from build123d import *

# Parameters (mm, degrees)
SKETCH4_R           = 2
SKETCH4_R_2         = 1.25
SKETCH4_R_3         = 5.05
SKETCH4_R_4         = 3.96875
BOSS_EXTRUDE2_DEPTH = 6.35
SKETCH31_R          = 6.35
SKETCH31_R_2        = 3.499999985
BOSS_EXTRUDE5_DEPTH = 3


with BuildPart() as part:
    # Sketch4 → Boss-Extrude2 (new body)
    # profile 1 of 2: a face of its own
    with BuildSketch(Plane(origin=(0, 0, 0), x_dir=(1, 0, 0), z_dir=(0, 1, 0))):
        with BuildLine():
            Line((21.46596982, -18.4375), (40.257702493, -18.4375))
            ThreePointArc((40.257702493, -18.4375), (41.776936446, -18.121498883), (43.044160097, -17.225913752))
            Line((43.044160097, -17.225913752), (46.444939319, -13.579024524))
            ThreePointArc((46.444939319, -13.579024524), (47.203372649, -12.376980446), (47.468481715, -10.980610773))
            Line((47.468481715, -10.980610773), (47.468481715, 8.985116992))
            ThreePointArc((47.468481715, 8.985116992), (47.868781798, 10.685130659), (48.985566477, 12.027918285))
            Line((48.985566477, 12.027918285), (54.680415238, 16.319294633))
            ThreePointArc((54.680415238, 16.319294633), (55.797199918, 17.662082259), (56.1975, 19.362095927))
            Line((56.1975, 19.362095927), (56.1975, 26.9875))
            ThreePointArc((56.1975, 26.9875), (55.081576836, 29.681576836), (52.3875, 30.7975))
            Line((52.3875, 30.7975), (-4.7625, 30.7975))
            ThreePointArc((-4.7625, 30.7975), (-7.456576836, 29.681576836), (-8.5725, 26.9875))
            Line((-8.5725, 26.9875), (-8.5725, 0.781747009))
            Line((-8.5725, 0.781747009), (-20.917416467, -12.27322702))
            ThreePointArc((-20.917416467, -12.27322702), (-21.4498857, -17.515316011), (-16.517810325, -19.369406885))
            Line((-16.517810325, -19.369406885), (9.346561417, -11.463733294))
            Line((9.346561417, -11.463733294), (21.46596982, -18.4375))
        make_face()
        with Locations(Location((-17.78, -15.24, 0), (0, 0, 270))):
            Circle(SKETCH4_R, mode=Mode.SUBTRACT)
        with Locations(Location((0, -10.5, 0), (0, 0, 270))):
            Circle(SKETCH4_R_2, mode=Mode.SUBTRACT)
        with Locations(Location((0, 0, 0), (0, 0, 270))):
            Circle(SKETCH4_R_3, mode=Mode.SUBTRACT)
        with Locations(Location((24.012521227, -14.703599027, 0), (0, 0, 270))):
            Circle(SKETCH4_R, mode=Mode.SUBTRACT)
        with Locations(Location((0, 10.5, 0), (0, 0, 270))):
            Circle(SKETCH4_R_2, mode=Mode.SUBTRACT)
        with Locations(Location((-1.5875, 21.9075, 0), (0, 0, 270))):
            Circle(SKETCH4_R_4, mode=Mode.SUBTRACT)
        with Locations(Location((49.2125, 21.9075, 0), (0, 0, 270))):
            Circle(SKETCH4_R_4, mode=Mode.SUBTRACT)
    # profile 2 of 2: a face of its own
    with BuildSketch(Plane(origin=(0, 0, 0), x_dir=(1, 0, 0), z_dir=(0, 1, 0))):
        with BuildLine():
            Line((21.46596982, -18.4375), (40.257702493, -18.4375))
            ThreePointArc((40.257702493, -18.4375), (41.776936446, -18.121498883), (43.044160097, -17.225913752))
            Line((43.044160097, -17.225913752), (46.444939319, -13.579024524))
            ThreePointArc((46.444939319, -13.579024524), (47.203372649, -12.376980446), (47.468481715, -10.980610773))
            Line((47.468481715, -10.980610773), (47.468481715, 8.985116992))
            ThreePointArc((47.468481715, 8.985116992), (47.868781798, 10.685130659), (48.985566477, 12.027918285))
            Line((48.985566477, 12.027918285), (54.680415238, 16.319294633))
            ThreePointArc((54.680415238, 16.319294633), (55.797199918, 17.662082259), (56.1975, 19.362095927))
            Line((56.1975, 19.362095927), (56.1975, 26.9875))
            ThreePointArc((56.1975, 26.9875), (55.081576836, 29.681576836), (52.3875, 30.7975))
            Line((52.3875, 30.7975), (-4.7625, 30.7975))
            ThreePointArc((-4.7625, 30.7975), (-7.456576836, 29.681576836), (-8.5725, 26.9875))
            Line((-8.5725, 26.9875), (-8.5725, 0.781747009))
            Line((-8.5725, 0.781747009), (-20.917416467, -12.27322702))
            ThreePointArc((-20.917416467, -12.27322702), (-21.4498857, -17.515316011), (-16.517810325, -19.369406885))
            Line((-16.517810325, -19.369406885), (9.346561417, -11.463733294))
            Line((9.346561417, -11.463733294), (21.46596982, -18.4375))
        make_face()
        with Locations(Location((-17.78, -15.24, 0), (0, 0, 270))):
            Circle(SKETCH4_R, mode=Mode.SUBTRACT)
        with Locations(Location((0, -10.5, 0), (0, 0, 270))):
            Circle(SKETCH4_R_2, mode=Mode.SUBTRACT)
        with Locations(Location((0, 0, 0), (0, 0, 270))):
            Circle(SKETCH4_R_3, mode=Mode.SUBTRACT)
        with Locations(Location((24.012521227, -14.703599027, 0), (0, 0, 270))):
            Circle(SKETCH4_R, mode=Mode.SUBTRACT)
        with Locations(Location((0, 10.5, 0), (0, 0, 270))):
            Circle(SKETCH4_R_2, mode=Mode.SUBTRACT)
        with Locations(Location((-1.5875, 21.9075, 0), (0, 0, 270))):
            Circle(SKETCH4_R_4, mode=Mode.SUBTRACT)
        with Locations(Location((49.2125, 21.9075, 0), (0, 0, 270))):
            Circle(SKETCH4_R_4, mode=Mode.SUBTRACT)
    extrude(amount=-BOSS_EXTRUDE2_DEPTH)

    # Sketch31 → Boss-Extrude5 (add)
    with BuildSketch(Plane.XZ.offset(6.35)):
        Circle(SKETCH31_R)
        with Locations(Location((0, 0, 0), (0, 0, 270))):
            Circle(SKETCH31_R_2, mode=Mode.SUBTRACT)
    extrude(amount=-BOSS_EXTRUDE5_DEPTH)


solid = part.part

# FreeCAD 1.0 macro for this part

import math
import FreeCAD as App
import Part
import Sketcher
from FreeCAD import Vector
Q = App.Units.Quantity

doc = App.newDocument("Part")
body = doc.addObject("PartDesign::Body", "Body")

sketch1 = body.newObject("Sketcher::SketchObject", "Sketch")
sketch1.AttachmentSupport = (doc.getObject("XZ_Plane"), [""])
sketch1.MapMode = "FlatFace"
sketch1.addGeometry([
    Part.LineSegment(Vector(21.5, 18.4, 0), Vector(40.3, 18.4, 0)),
    Part.ArcOfCircle(Part.Circle(Vector(40.3, 14.6, 0), Vector(0, 0, 1), 3.8), math.radians(43), math.radians(90)),
    Part.LineSegment(Vector(43, 17.2, 0), Vector(46.4, 13.6, 0)),
    Part.ArcOfCircle(Part.Circle(Vector(43.7, 11, 0), Vector(0, 0, 1), 3.8), math.radians(0), math.radians(43)),
    Part.LineSegment(Vector(47.5, 11, 0), Vector(47.5, -9, 0)),
    Part.ArcOfCircle(Part.Circle(Vector(51.3, -9, 0), Vector(0, 0, 1), 3.8), math.radians(-180), math.radians(-127)),
    Part.LineSegment(Vector(49, -12, 0), Vector(54.7, -16.3, 0)),
    Part.ArcOfCircle(Part.Circle(Vector(52.4, -19.4, 0), Vector(0, 0, 1), 3.8), math.radians(0), math.radians(53)),
    Part.LineSegment(Vector(56.2, -19.4, 0), Vector(56.2, -27, 0)),
    Part.ArcOfCircle(Part.Circle(Vector(52.4, -27, 0), Vector(0, 0, 1), 3.8), math.radians(-90), math.radians(0)),
    Part.LineSegment(Vector(52.4, -30.8, 0), Vector(-4.8, -30.8, 0)),
    Part.ArcOfCircle(Part.Circle(Vector(-4.8, -27, 0), Vector(0, 0, 1), 3.8), math.radians(-180), math.radians(-90)),
    Part.LineSegment(Vector(-8.6, -27, 0), Vector(-8.6, -0.8, 0)),
    Part.LineSegment(Vector(-8.6, -0.8, 0), Vector(-20.9, 12.3, 0)),
    Part.ArcOfCircle(Part.Circle(Vector(-17.8, 15.2, 0), Vector(0, 0, 1), 4.3), math.radians(73), math.radians(223)),
    Part.LineSegment(Vector(-16.5, 19.4, 0), Vector(9.3, 11.5, 0)),
    Part.LineSegment(Vector(9.3, 11.5, 0), Vector(21.5, 18.4, 0)),
    Part.Circle(Vector(-17.8, 15.2, 0), Vector(0, 0, 1), 2),
    Part.Circle(Vector(0, 10.5, 0), Vector(0, 0, 1), 1.2),
    Part.Circle(Vector(0, 0, 0), Vector(0, 0, 1), 5),
    Part.Circle(Vector(24, 14.7, 0), Vector(0, 0, 1), 2),
    Part.Circle(Vector(0, -10.5, 0), Vector(0, 0, 1), 1.2),
    Part.Circle(Vector(-1.6, -21.9, 0), Vector(0, 0, 1), 4),
    Part.Circle(Vector(49.2, -21.9, 0), Vector(0, 0, 1), 4),
], False)
sketch1.addConstraint([
    Sketcher.Constraint("Tangent", 0, 2, 1, 2),
    Sketcher.Constraint("Tangent", 1, 1, 2, 1),
    Sketcher.Constraint("Tangent", 2, 2, 3, 2),
    Sketcher.Constraint("Tangent", 3, 1, 4, 1),
    Sketcher.Constraint("Tangent", 4, 2, 5, 1),
    Sketcher.Constraint("Tangent", 5, 2, 6, 1),
    Sketcher.Constraint("Tangent", 6, 2, 7, 2),
    Sketcher.Constraint("Tangent", 7, 1, 8, 1),
    Sketcher.Constraint("Tangent", 8, 2, 9, 2),
    Sketcher.Constraint("Tangent", 9, 1, 10, 1),
    Sketcher.Constraint("Tangent", 10, 2, 11, 2),
    Sketcher.Constraint("Tangent", 11, 1, 12, 1),
    Sketcher.Constraint("Coincident", 12, 2, 13, 1),
    Sketcher.Constraint("Tangent", 13, 2, 14, 2),
    Sketcher.Constraint("Tangent", 14, 1, 15, 1),
    Sketcher.Constraint("Coincident", 15, 2, 16, 1),
    Sketcher.Constraint("Coincident", 16, 2, 0, 1),
    Sketcher.Constraint("Horizontal", 0),
    Sketcher.Constraint("Vertical", 4),
    Sketcher.Constraint("Vertical", 8),
    Sketcher.Constraint("Horizontal", 10),
    Sketcher.Constraint("Vertical", 12),
    Sketcher.Constraint("Coincident", 19, 3, -1, 1),
    Sketcher.Constraint("Coincident", 17, 3, 14, 3),
    Sketcher.Constraint("Equal", 1, 3),
    Sketcher.Constraint("Equal", 3, 5),
    Sketcher.Constraint("Equal", 5, 7),
    Sketcher.Constraint("Equal", 7, 9),
    Sketcher.Constraint("Equal", 9, 11),
    Sketcher.Constraint("Equal", 17, 20),
    Sketcher.Constraint("Equal", 18, 21),
    Sketcher.Constraint("Equal", 22, 23),
    Sketcher.Constraint("Symmetric", 18, 3, 21, 3, -1, 1),
    Sketcher.Constraint("PointOnObject", 18, 3, -2),
    Sketcher.Constraint("Horizontal", 22, 3, 23, 3),
    Sketcher.Constraint("Radius", 1, Q("0.15 in")),
    Sketcher.Constraint("Radius", 14, Q("0.17 in")),
    Sketcher.Constraint("Diameter", 22, Q("0.3125 in")),
    Sketcher.Constraint("Angle", 2, Q("-47 deg")),
    Sketcher.Constraint("Angle", 6, Q("-37 deg")),
    Sketcher.Constraint("DistanceX", 10, 2, 10, 1, Q("2.25 in")),
    Sketcher.Constraint("DistanceX", 14, 3, -1, 1, Q("0.7 in")),
    Sketcher.Constraint("DistanceY", -1, 1, 14, 3, Q("0.6 in")),
    Sketcher.Constraint("DistanceY", 11, 3, 22, 3, Q("0.2 in")),
    Sketcher.Constraint("Diameter", 17, 4.0),
    Sketcher.Constraint("Diameter", 18, 2.5),
    Sketcher.Constraint("Diameter", 19, 10.1),
    Sketcher.Constraint("DistanceX", -1, 1, 7, 3, Q("2.0625 in")),
    Sketcher.Constraint("DistanceY", 9, 3, -1, 1, Q("1.0625 in")),
    Sketcher.Constraint("DistanceX", 22, 3, -1, 1, Q("0.0625 in")),
    Sketcher.Constraint("DistanceX", -1, 1, 23, 3, Q("1.9375 in")),
    Sketcher.Constraint("DistanceY", 18, 3, 1, 3, Q("0.1625 in")),
    Sketcher.Constraint("DistanceX", 15, 2, 20, 3, Q("0.5774 in")),
    Sketcher.Constraint("DistanceY", -1, 1, 1, 3, 14.6275),
    Sketcher.Constraint("DistanceY", -1, 1, 20, 3, 14.703599),
    Sketcher.Constraint("Distance", 2, 4.986492),
    Sketcher.Constraint("Distance", 13, 17.967451),
    Sketcher.Constraint("DistanceX", 0, 1, 0, 2, 18.791733),
    Sketcher.Constraint("DistanceY", 4, 2, 4, 1, 19.965728),
    Sketcher.Constraint("DistanceY", 8, 2, 8, 1, 7.625404),
    Sketcher.Constraint("DistanceX", -1, 1, 20, 3, 24.012521),
    Sketcher.Constraint("DistanceX", 14, 1, -1, 1, 16.51781),
])
pad1 = body.newObject("PartDesign::Pad", "Pad")
pad1.Profile = sketch1
pad1.Length = Q("0.25 in")

sketch2 = body.newObject("Sketcher::SketchObject", "Sketch001")
sketch2.AttachmentSupport = (doc.getObject("XZ_Plane"), [""])
sketch2.MapMode = "FlatFace"
sketch2.AttachmentOffset = App.Placement(Vector(0, 0, 0.25 * 25.4), App.Rotation())
sketch2.addGeometry([
    Part.Circle(Vector(0, 0, 0), Vector(0, 0, 1), 6.3),
    Part.Circle(Vector(0, 0, 0), Vector(0, 0, 1), 3.5),
], False)
sketch2.addConstraint([
    Sketcher.Constraint("Coincident", 0, 3, -1, 1),
    Sketcher.Constraint("Coincident", 1, 3, -1, 1),
    Sketcher.Constraint("Diameter", 0, Q("0.5 in")),
    Sketcher.Constraint("Diameter", 1, 7.0),
])
pad2 = body.newObject("PartDesign::Pad", "Pad001")
pad2.Profile = sketch2
pad2.Length = 3
pad2.Reversed = True

doc.recompute()
